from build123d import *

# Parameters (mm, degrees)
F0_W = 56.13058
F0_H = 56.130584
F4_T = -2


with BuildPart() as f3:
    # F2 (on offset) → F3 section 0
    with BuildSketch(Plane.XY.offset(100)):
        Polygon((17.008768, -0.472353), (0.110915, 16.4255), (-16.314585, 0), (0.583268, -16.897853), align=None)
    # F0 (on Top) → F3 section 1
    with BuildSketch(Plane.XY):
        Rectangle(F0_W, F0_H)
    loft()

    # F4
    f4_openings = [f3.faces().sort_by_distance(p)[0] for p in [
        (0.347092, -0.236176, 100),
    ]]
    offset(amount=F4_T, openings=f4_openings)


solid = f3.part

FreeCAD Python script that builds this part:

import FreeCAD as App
import Part
import Sketcher
Q = App.Units.Quantity


def faces_at(feature, points):
    """Names of the faces that lie closest to the given points."""
    faces = feature.Shape.Faces
    near = lambda p: min(range(len(faces)), key=lambda i: faces[i].distToShape(Part.Vertex(*p))[0])
    return sorted({f"Face{near(p) + 1}" for p in points})

doc = App.newDocument("Part")
body = doc.addObject("PartDesign::Body", "Body")

sketch1 = body.newObject("Sketcher::SketchObject", "Sketch")
sketch1.AttachmentSupport = (doc.getObject("XY_Plane"), [""])
sketch1.MapMode = "FlatFace"
sketch1.AttachmentOffset = App.Placement(App.Vector(0, 0, 100), App.Rotation())
sketch1.addGeometry(Part.LineSegment(App.Vector(17, 0, 0), App.Vector(0, 16, 0)), False)
sketch1.addGeometry(Part.LineSegment(App.Vector(0, 16, 0), App.Vector(-16, 0, 0)), False)
sketch1.addGeometry(Part.LineSegment(App.Vector(-16, 0, 0), App.Vector(1, -17, 0)), False)
sketch1.addGeometry(Part.LineSegment(App.Vector(1, -17, 0), App.Vector(17, 0, 0)), False)
sketch1.addConstraint(Sketcher.Constraint("Coincident", 0, 2, 1, 1))
sketch1.addConstraint(Sketcher.Constraint("Coincident", 1, 2, 2, 1))
sketch1.addConstraint(Sketcher.Constraint("Coincident", 2, 2, 3, 1))
sketch1.addConstraint(Sketcher.Constraint("Coincident", 3, 2, 0, 1))
sketch1.addConstraint(Sketcher.Constraint("PointOnObject", 1, 2, -1))
sketch1.addConstraint(Sketcher.Constraint("Perpendicular", 0, 1))
sketch1.addConstraint(Sketcher.Constraint("Perpendicular", 1, 2))
sketch1.addConstraint(Sketcher.Constraint("Perpendicular", 2, 3))
sketch1.addConstraint(Sketcher.Constraint("Angle", 0, Q("135 deg")))
sketch1.addConstraint(Sketcher.Constraint("DistanceY", -1, 1, 0, 2, Q("16.4255 mm")))
sketch1.addConstraint(Sketcher.Constraint("DistanceX", -1, 1, 2, 2, Q("0.583268 mm")))
sketch1.addConstraint(Sketcher.Constraint("Distance", 0, Q("23.897173 mm")))

sketch2 = body.newObject("Sketcher::SketchObject", "Sketch001")
sketch2.AttachmentSupport = (doc.getObject("XY_Plane"), [""])
sketch2.MapMode = "FlatFace"
sketch2.addGeometry(Part.LineSegment(App.Vector(-28, 28, 0), App.Vector(-28, -28, 0)), False)
sketch2.addGeometry(Part.LineSegment(App.Vector(-28, -28, 0), App.Vector(28, -28, 0)), False)
sketch2.addGeometry(Part.LineSegment(App.Vector(28, -28, 0), App.Vector(28, 28, 0)), False)
sketch2.addGeometry(Part.LineSegment(App.Vector(28, 28, 0), App.Vector(-28, 28, 0)), False)
sketch2.addConstraint(Sketcher.Constraint("Coincident", 0, 2, 1, 1))
sketch2.addConstraint(Sketcher.Constraint("Coincident", 1, 2, 2, 1))
sketch2.addConstraint(Sketcher.Constraint("Coincident", 2, 2, 3, 1))
sketch2.addConstraint(Sketcher.Constraint("Coincident", 3, 2, 0, 1))
sketch2.addConstraint(Sketcher.Constraint("Vertical", 0))
sketch2.addConstraint(Sketcher.Constraint("Horizontal", 1))
sketch2.addConstraint(Sketcher.Constraint("Vertical", 2))
sketch2.addConstraint(Sketcher.Constraint("Horizontal", 3))
sketch2.addConstraint(Sketcher.Constraint("Symmetric", 0, 2, 2, 2, -1, 1))
sketch2.addConstraint(Sketcher.Constraint("DistanceX", 1, 1, 1, 2, Q("56.13058 mm")))
sketch2.addConstraint(Sketcher.Constraint("DistanceY", 0, 2, 0, 1, Q("56.130584 mm")))

additiveloft = body.newObject("PartDesign::AdditiveLoft", "AdditiveLoft")
additiveloft.Profile = sketch1
additiveloft.Sections = [sketch2]
doc.recompute()

thickness = body.newObject("PartDesign::Thickness", "Thickness")
thickness.Base = (additiveloft, faces_at(additiveloft, [(0.347, -0.236, 100)]))
thickness.Value = 2
thickness.Reversed = True
thickness.Join = "Arc"

doc.recompute()
